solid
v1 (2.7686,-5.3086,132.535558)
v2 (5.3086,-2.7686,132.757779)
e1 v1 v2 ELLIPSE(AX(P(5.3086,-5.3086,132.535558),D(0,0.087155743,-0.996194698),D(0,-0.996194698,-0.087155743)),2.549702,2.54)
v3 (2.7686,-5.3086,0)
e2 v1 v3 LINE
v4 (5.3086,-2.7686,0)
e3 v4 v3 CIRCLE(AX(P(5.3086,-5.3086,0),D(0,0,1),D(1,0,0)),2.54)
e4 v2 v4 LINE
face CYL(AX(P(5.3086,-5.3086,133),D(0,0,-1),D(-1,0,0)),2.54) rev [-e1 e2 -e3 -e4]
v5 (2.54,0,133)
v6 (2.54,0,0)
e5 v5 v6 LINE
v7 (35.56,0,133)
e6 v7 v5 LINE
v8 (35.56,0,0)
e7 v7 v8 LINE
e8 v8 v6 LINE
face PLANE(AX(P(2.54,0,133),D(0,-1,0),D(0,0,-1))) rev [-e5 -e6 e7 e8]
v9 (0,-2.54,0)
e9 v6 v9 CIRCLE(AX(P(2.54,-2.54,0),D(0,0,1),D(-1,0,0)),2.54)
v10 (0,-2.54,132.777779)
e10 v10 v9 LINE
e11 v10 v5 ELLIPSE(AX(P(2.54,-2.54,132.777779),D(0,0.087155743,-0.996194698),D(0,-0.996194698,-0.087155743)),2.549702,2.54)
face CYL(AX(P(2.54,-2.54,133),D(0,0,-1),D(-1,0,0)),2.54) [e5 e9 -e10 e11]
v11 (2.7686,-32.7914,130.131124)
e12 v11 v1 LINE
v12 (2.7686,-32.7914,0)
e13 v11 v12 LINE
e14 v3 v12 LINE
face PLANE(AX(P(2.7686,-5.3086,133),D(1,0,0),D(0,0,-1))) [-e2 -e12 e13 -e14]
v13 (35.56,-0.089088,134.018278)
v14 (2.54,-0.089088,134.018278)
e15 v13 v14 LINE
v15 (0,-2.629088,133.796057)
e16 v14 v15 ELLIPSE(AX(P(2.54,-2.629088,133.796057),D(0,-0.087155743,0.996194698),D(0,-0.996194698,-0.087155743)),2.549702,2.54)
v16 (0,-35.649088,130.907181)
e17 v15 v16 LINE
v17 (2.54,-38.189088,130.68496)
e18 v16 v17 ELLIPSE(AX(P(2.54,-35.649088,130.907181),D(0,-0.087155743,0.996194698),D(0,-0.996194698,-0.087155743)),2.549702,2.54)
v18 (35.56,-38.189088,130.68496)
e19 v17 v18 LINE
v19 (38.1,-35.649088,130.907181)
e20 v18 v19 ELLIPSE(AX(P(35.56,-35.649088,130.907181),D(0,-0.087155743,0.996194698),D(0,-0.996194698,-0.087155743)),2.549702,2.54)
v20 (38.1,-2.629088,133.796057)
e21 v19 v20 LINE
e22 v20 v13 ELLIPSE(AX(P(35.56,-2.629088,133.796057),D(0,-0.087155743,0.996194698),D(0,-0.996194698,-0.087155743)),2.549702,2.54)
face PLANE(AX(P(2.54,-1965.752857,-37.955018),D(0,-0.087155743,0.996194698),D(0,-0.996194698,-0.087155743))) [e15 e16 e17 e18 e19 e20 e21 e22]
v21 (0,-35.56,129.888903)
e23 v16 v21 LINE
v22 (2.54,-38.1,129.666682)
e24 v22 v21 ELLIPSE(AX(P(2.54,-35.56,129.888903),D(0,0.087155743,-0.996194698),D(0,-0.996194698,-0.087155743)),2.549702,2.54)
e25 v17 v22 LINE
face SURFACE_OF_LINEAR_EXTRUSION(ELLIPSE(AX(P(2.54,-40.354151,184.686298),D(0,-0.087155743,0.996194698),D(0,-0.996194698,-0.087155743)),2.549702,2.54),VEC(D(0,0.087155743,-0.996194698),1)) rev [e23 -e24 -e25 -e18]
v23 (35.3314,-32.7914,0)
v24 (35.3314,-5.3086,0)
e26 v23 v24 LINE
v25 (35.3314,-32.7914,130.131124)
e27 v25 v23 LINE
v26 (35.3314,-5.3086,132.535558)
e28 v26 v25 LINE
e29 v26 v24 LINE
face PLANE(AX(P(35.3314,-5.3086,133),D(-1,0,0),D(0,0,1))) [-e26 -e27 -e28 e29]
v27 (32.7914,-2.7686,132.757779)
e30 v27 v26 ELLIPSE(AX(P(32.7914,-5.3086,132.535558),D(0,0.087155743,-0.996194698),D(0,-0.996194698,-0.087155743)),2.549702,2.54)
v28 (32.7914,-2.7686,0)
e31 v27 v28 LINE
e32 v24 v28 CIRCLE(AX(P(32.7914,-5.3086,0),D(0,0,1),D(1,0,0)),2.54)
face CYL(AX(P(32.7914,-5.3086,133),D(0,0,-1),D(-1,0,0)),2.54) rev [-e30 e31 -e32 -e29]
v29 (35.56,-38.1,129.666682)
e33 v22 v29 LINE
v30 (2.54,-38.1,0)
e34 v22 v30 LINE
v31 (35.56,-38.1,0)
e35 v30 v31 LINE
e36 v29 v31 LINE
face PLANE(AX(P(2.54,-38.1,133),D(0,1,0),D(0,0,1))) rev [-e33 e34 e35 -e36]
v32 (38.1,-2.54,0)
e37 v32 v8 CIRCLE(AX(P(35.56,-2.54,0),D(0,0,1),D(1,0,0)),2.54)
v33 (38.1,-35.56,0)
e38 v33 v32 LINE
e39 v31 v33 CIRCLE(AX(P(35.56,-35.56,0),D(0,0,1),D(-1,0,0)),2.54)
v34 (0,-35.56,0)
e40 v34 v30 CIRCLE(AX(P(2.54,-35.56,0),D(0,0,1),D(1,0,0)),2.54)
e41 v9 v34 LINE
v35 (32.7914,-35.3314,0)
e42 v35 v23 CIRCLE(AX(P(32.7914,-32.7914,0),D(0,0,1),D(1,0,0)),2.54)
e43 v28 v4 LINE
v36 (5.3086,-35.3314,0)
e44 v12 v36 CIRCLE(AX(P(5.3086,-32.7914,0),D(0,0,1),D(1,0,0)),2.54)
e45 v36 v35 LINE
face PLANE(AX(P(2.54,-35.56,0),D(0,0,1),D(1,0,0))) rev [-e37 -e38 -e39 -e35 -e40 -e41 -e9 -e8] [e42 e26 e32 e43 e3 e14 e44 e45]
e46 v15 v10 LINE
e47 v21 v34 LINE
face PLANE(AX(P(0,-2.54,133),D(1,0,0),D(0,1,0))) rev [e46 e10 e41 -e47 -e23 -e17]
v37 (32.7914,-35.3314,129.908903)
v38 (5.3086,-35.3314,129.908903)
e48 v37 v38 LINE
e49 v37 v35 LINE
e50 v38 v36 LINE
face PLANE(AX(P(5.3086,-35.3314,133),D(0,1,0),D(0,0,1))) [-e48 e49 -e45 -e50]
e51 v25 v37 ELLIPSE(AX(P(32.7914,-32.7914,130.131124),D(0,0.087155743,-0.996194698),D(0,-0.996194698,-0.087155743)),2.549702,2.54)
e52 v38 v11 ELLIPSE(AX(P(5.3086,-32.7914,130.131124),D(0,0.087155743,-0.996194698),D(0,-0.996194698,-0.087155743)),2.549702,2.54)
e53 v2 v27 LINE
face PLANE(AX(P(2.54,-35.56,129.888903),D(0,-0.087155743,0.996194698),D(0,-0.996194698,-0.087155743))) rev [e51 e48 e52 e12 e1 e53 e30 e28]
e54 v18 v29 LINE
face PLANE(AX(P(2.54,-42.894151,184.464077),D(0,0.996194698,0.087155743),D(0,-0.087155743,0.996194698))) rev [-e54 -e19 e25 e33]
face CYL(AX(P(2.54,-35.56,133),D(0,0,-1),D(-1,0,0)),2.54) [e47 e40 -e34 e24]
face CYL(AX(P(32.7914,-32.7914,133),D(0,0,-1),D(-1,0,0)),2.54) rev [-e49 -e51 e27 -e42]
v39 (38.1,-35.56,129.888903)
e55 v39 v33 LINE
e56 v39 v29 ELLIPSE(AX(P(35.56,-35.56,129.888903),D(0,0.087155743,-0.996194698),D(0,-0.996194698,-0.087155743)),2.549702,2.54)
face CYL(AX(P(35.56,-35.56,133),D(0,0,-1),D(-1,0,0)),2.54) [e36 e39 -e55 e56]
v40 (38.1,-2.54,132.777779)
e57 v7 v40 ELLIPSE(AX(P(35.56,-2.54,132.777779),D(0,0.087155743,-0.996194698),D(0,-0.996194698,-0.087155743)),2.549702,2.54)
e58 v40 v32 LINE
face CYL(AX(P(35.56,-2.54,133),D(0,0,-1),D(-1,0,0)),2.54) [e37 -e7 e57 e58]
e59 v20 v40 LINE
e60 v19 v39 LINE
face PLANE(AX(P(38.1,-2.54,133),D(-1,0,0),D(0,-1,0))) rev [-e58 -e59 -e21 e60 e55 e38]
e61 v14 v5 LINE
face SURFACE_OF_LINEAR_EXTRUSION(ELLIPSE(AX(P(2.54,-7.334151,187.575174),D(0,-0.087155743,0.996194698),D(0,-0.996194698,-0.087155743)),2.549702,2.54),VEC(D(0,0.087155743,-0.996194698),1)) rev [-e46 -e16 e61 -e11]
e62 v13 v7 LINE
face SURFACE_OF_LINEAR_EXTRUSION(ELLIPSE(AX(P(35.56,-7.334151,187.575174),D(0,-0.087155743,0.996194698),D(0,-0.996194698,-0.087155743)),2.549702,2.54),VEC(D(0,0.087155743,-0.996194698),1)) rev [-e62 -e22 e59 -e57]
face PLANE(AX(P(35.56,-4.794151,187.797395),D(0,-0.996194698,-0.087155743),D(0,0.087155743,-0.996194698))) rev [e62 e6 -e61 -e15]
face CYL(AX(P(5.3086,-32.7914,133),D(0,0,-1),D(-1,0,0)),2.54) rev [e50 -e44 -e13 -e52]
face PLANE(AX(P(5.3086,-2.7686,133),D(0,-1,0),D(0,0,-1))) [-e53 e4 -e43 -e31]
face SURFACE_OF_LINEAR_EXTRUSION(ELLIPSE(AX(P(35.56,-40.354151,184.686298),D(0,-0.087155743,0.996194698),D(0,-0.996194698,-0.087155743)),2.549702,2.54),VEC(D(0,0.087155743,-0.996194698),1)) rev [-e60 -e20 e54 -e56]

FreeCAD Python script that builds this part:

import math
import FreeCAD as App
import Part
import Sketcher
Q = App.Units.Quantity

doc = App.newDocument("Part")
params = doc.addObject("Spreadsheet::Sheet", "Params")
for row, (alias, value) in enumerate([
    ("sketch1_radius", "0.1 in"),
    ("sketch1_width", "1.3 in"),
    ("sketch1_width2", "1.082 in"),
    ("pad1_length", "133 mm"),
    ("sketch2_width", "1.5 in"),
    ("pad2_length", "1.022168 mm"),
], start=1):
    params.set(f"A{row}", alias)
    params.set(f"B{row}", "=" + value)
    params.setAlias(f"B{row}", alias)

body = doc.addObject("PartDesign::Body", "Body")

sketch1 = doc.addObject("Sketcher::SketchObject", "Sketch")
body.addObject(sketch1)
sketch1.AttachmentSupport = (doc.XY_Plane, [""])
sketch1.MapMode = "FlatFace"
sketch1.addGeometry([
    Part.LineSegment(App.Vector(35.6, 0, 0), App.Vector(2.5, 0, 0)),
    Part.ArcOfCircle(Part.Circle(App.Vector(2.5, -2.5, 0), App.Vector(0, 0, 1), 2.5), math.radians(90), math.radians(180)),
    Part.LineSegment(App.Vector(0, -2.5, 0), App.Vector(0, -35.6, 0)),
    Part.ArcOfCircle(Part.Circle(App.Vector(2.5, -35.6, 0), App.Vector(0, 0, 1), 2.5), math.radians(-180), math.radians(-90)),
    Part.LineSegment(App.Vector(2.5, -38.1, 0), App.Vector(35.6, -38.1, 0)),
    Part.ArcOfCircle(Part.Circle(App.Vector(35.6, -35.6, 0), App.Vector(0, 0, 1), 2.5), math.radians(-90), math.radians(0)),
    Part.LineSegment(App.Vector(38.1, -35.6, 0), App.Vector(38.1, -2.5, 0)),
    Part.ArcOfCircle(Part.Circle(App.Vector(35.6, -2.5, 0), App.Vector(0, 0, 1), 2.5), math.radians(0), math.radians(90)),
    Part.LineSegment(App.Vector(5.3, -2.8, 0), App.Vector(32.8, -2.8, 0)),
    Part.ArcOfCircle(Part.Circle(App.Vector(32.8, -5.3, 0), App.Vector(0, 0, 1), 2.5), math.radians(0), math.radians(90)),
    Part.LineSegment(App.Vector(35.3, -5.3, 0), App.Vector(35.3, -32.8, 0)),
    Part.ArcOfCircle(Part.Circle(App.Vector(32.8, -32.8, 0), App.Vector(0, 0, 1), 2.5), math.radians(-90), math.radians(0)),
    Part.LineSegment(App.Vector(32.8, -35.3, 0), App.Vector(5.3, -35.3, 0)),
    Part.ArcOfCircle(Part.Circle(App.Vector(5.3, -32.8, 0), App.Vector(0, 0, 1), 2.5), math.radians(-180), math.radians(-90)),
    Part.LineSegment(App.Vector(2.8, -32.8, 0), App.Vector(2.8, -5.3, 0)),
    Part.ArcOfCircle(Part.Circle(App.Vector(5.3, -5.3, 0), App.Vector(0, 0, 1), 2.5), math.radians(90), math.radians(180)),
], False)
sketch1.addConstraint([
    Sketcher.Constraint("Tangent", 0, 2, 1, 1),
    Sketcher.Constraint("Tangent", 1, 2, 2, 1),
    Sketcher.Constraint("Tangent", 2, 2, 3, 1),
    Sketcher.Constraint("Tangent", 3, 2, 4, 1),
    Sketcher.Constraint("Tangent", 4, 2, 5, 1),
    Sketcher.Constraint("Tangent", 5, 2, 6, 1),
    Sketcher.Constraint("Tangent", 6, 2, 7, 1),
    Sketcher.Constraint("Tangent", 7, 2, 0, 1),
    Sketcher.Constraint("Tangent", 8, 2, 9, 2),
    Sketcher.Constraint("Tangent", 9, 1, 10, 1),
    Sketcher.Constraint("Tangent", 10, 2, 11, 2),
    Sketcher.Constraint("Tangent", 11, 1, 12, 1),
    Sketcher.Constraint("Tangent", 12, 2, 13, 2),
    Sketcher.Constraint("Tangent", 13, 1, 14, 1),
    Sketcher.Constraint("Tangent", 14, 2, 15, 2),
    Sketcher.Constraint("Tangent", 15, 1, 8, 1),
    Sketcher.Constraint("Horizontal", 0),
    Sketcher.Constraint("Vertical", 2),
    Sketcher.Constraint("Horizontal", 4),
    Sketcher.Constraint("Vertical", 6),
    Sketcher.Constraint("Horizontal", 8),
    Sketcher.Constraint("Vertical", 10),
    Sketcher.Constraint("Horizontal", 12),
    Sketcher.Constraint("Vertical", 14),
    Sketcher.Constraint("Equal", 1, 3),
    Sketcher.Constraint("Equal", 3, 5),
    Sketcher.Constraint("Equal", 5, 7),
    Sketcher.Constraint("Equal", 7, 9),
    Sketcher.Constraint("Equal", 9, 11),
    Sketcher.Constraint("Equal", 11, 13),
    Sketcher.Constraint("Equal", 13, 15),
    Sketcher.Constraint("PointOnObject", 0, 2, -1),
    Sketcher.Constraint("PointOnObject", 1, 2, -2),
    Sketcher.Constraint("Equal", 4, 2),
    Sketcher.Constraint("Equal", 12, 10),
    Sketcher.Constraint("Radius", 1, Q("0.1 in")),
    Sketcher.Constraint("DistanceX", 0, 2, 0, 1, Q("1.3 in")),
    Sketcher.Constraint("DistanceX", 8, 1, 8, 2, Q("1.082 in")),
    Sketcher.Constraint("DistanceX", -1, 1, 9, 3, Q("1.291 in")),
    Sketcher.Constraint("DistanceY", 9, 3, -1, 1, Q("0.209 in")),
])
sketch1.setExpression("Constraints[35]", "Params.sketch1_radius")
sketch1.setExpression("Constraints[36]", "Params.sketch1_width")
sketch1.setExpression("Constraints[37]", "Params.sketch1_width2")
pad1 = doc.addObject("PartDesign::Pad", "Pad")
body.addObject(pad1)
pad1.Profile = sketch1
pad1.setExpression("Length", "Params.pad1_length")

sketch2 = doc.addObject("Sketcher::SketchObject", "Sketch001")
body.addObject(sketch2)
sketch2.AttachmentSupport = (doc.YZ_Plane, [""])
sketch2.MapMode = "FlatFace"
sketch2.AttachmentOffset = App.Placement(App.Vector(0, 0, 1.5 * 25.4), App.Rotation())
sketch2.addGeometry([
    Part.LineSegment(App.Vector(-38.1, 129.7, 0), App.Vector(0, 133, 0)),
    Part.LineSegment(App.Vector(0, 133, 0), App.Vector(-38.1, 133, 0)),
    Part.LineSegment(App.Vector(-38.1, 133, 0), App.Vector(-38.1, 129.7, 0)),
], False)
sketch2.addConstraint([
    Sketcher.Constraint("Coincident", 0, 2, 1, 1),
    Sketcher.Constraint("Coincident", 1, 2, 2, 1),
    Sketcher.Constraint("Coincident", 2, 2, 0, 1),
    Sketcher.Constraint("Horizontal", 1),
    Sketcher.Constraint("Vertical", 2),
    Sketcher.Constraint("PointOnObject", 0, 2, -2),
    Sketcher.Constraint("DistanceX", 1, 2, 1, 1, Q("1.5 in")),
    Sketcher.Constraint("Angle", 0, Q("5 deg")),
    Sketcher.Constraint("DistanceY", -1, 1, 0, 2, 133.0),
])
sketch2.setExpression("Constraints[6]", "Params.sketch2_width")
pocket1 = doc.addObject("PartDesign::Pocket", "Pocket")
body.addObject(pocket1)
pocket1.Profile = sketch2
pocket1.Type = "ThroughAll"

sketch3 = doc.addObject("Sketcher::SketchObject", "Sketch002")
body.addObject(sketch3)
sketch3.Placement = App.Placement(App.Vector(0, -11.547604, 131.989716), App.Rotation(App.Vector(1, 0, 0), App.Vector(0, 0.996194698, 0.087155743), App.Vector(0, -0.087155743, 0.996194698), "ZXY"))
sketch3.addGeometry([
    Part.LineSegment(App.Vector(2.54, -26.653822, 0), App.Vector(35.56, -26.653822, 0)),
    Part.BSplineCurve([App.Vector(35.56, -26.653822, 0), App.Vector(38.1, -26.653822, 0), App.Vector(38.1, -24.10412, 0)], [3, 3], [0, 1.570796327], False, 2, [1, 0.707106781, 1], False),
    Part.LineSegment(App.Vector(38.1, -24.10412, 0), App.Vector(38.1, 9.042011, 0)),
    Part.BSplineCurve([App.Vector(38.1, 9.042011, 0), App.Vector(38.1, 11.591714, 0), App.Vector(35.56, 11.591714, 0)], [3, 3], [1.570796327, 3.141592654], False, 2, [1, 0.707106781, 1], False),
    Part.LineSegment(App.Vector(35.56, 11.591714, 0), App.Vector(2.54, 11.591714, 0)),
    Part.BSplineCurve([App.Vector(2.54, 11.591714, 0), App.Vector(0, 11.591714, 0), App.Vector(0, 9.042011, 0)], [3, 3], [0, 1.570796327], False, 2, [1, 0.707106781, 1], False),
    Part.LineSegment(App.Vector(0, 9.042011, 0), App.Vector(0, -24.10412, 0)),
    Part.BSplineCurve([App.Vector(0, -24.10412, 0), App.Vector(0, -26.653822, 0), App.Vector(2.54, -26.653822, 0)], [3, 3], [4.71238898, 6.283185307], False, 2, [1, 0.707106781, 1], False),
], False)
sketch3.addConstraint([
    Sketcher.Constraint("Block", 1),
    Sketcher.Constraint("Block", 3),
    Sketcher.Constraint("Block", 5),
    Sketcher.Constraint("Block", 7),
    Sketcher.Constraint("Coincident", 0, 2, 1, 1),
    Sketcher.Constraint("Coincident", 1, 2, 2, 1),
    Sketcher.Constraint("Coincident", 2, 2, 3, 1),
    Sketcher.Constraint("Coincident", 3, 2, 4, 1),
    Sketcher.Constraint("Coincident", 4, 2, 5, 1),
    Sketcher.Constraint("Coincident", 5, 2, 6, 1),
    Sketcher.Constraint("Coincident", 6, 2, 7, 1),
    Sketcher.Constraint("Coincident", 7, 2, 0, 1),
])
pad2 = doc.addObject("PartDesign::Pad", "Pad001")
body.addObject(pad2)
pad2.Profile = sketch3
pad2.setExpression("Length", "Params.pad2_length")

doc.recompute()
